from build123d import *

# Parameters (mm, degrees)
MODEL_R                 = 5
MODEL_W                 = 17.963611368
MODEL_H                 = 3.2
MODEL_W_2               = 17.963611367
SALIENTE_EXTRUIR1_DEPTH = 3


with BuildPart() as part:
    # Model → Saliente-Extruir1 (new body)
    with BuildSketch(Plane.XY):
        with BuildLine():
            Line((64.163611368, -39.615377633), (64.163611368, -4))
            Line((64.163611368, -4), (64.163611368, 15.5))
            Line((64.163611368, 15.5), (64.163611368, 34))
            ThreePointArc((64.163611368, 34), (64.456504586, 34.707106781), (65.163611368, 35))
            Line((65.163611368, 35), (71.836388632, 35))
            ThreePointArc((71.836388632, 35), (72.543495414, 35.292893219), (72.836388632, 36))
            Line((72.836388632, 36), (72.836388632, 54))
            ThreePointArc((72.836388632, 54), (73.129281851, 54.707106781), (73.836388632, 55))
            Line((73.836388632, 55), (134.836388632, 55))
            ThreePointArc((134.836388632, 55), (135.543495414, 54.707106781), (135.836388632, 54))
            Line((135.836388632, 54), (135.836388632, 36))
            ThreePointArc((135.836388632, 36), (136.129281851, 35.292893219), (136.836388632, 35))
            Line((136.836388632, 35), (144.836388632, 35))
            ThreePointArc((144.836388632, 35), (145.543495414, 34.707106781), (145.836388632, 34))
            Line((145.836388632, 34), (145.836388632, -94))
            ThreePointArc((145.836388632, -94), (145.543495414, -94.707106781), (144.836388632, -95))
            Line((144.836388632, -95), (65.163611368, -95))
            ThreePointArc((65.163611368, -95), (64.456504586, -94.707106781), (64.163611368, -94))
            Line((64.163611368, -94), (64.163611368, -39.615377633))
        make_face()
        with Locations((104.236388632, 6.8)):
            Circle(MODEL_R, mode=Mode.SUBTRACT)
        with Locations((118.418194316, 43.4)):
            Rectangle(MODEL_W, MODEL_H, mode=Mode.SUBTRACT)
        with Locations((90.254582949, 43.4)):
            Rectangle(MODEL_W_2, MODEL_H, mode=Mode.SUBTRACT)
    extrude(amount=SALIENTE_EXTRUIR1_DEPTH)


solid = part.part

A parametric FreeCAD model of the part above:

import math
import FreeCAD as App
import Part
import Sketcher
Q = App.Units.Quantity


def add_polygon(sketch, points):
    """Adds a closed chain of lines whose ends are joined by coincident constraints."""
    first, n = sketch.GeometryCount, len(points)
    for a, b in zip(points, points[1:] + points[:1]):
        sketch.addGeometry(Part.LineSegment(App.Vector(*a, 0), App.Vector(*b, 0)), False)
    for i in range(n):
        sketch.addConstraint(Sketcher.Constraint("Coincident", first + i, 2, first + (i + 1) % n, 1))

doc = App.newDocument("Part")
body = doc.addObject("PartDesign::Body", "Body")

# Sketch on XY plane
sketch1 = body.newObject("Sketcher::SketchObject", "Sketch")
sketch1.AttachmentSupport = (doc.getObject("XY_Plane"), [""])
sketch1.MapMode = "FlatFace"
sketch1.addGeometry(Part.ArcOfCircle(Part.Circle(App.Vector(65.163611, 34, 0), App.Vector(0, 0, 1), 1), math.radians(90), math.radians(180)), False)  # 0
sketch1.addGeometry(Part.LineSegment(App.Vector(64.163611, 34, 0), App.Vector(64.163611, -94, 0)), False)  # 1
sketch1.addGeometry(Part.ArcOfCircle(Part.Circle(App.Vector(65.163611, -94, 0), App.Vector(0, 0, 1), 1), math.radians(180), math.radians(270)), False)  # 2
sketch1.addGeometry(Part.LineSegment(App.Vector(65.163611, -95, 0), App.Vector(144.836389, -95, 0)), False)  # 3
sketch1.addGeometry(Part.ArcOfCircle(Part.Circle(App.Vector(144.836389, -94, 0), App.Vector(0, 0, 1), 1), math.radians(-90), math.radians(0)), False)  # 4
sketch1.addGeometry(Part.LineSegment(App.Vector(145.836389, -94, 0), App.Vector(145.836389, 34, 0)), False)  # 5
sketch1.addGeometry(Part.ArcOfCircle(Part.Circle(App.Vector(144.836389, 34, 0), App.Vector(0, 0, 1), 1), math.radians(0), math.radians(90)), False)  # 6
sketch1.addGeometry(Part.LineSegment(App.Vector(144.836389, 35, 0), App.Vector(136.836389, 35, 0)), False)  # 7
sketch1.addGeometry(Part.ArcOfCircle(Part.Circle(App.Vector(136.836389, 36, 0), App.Vector(0, 0, 1), 1), math.radians(-180), math.radians(-90)), False)  # 8
sketch1.addGeometry(Part.LineSegment(App.Vector(135.836389, 36, 0), App.Vector(135.836389, 54, 0)), False)  # 9
sketch1.addGeometry(Part.ArcOfCircle(Part.Circle(App.Vector(134.836389, 54, 0), App.Vector(0, 0, 1), 1), math.radians(0), math.radians(90)), False)  # 10
sketch1.addGeometry(Part.LineSegment(App.Vector(134.836389, 55, 0), App.Vector(73.836389, 55, 0)), False)  # 11
sketch1.addGeometry(Part.ArcOfCircle(Part.Circle(App.Vector(73.836389, 54, 0), App.Vector(0, 0, 1), 1), math.radians(90), math.radians(180)), False)  # 12
sketch1.addGeometry(Part.LineSegment(App.Vector(72.836389, 54, 0), App.Vector(72.836389, 36, 0)), False)  # 13
sketch1.addGeometry(Part.ArcOfCircle(Part.Circle(App.Vector(71.836389, 36, 0), App.Vector(0, 0, 1), 1), math.radians(-90), math.radians(0)), False)  # 14
sketch1.addGeometry(Part.LineSegment(App.Vector(71.836389, 35, 0), App.Vector(65.163611, 35, 0)), False)  # 15
sketch1.addGeometry(Part.Circle(App.Vector(104.236389, 6.8, 0), App.Vector(0, 0, 1), 5), False)  # 16
add_polygon(sketch1, [(109.436389, 41.8), (109.436389, 45), (127.4, 45), (127.4, 41.8)])  # lines 17-20
add_polygon(sketch1, [(81.272777, 41.8), (81.272777, 45), (99.236389, 45), (99.236389, 41.8)])  # lines 21-24
sketch1.addConstraint(Sketcher.Constraint("Tangent", 0, 2, 1, 1))
sketch1.addConstraint(Sketcher.Constraint("Tangent", 1, 2, 2, 1))
sketch1.addConstraint(Sketcher.Constraint("Tangent", 2, 2, 3, 1))
sketch1.addConstraint(Sketcher.Constraint("Tangent", 3, 2, 4, 1))
sketch1.addConstraint(Sketcher.Constraint("Tangent", 4, 2, 5, 1))
sketch1.addConstraint(Sketcher.Constraint("Tangent", 5, 2, 6, 1))
sketch1.addConstraint(Sketcher.Constraint("Tangent", 6, 2, 7, 1))
sketch1.addConstraint(Sketcher.Constraint("Tangent", 7, 2, 8, 2))
sketch1.addConstraint(Sketcher.Constraint("Tangent", 8, 1, 9, 1))
sketch1.addConstraint(Sketcher.Constraint("Tangent", 9, 2, 10, 1))
sketch1.addConstraint(Sketcher.Constraint("Tangent", 10, 2, 11, 1))
sketch1.addConstraint(Sketcher.Constraint("Tangent", 11, 2, 12, 1))
sketch1.addConstraint(Sketcher.Constraint("Tangent", 12, 2, 13, 1))
sketch1.addConstraint(Sketcher.Constraint("Tangent", 13, 2, 14, 2))
sketch1.addConstraint(Sketcher.Constraint("Tangent", 14, 1, 15, 1))
sketch1.addConstraint(Sketcher.Constraint("Tangent", 15, 2, 0, 1))
sketch1.addConstraint(Sketcher.Constraint("Vertical", 1))
sketch1.addConstraint(Sketcher.Constraint("Horizontal", 3))
sketch1.addConstraint(Sketcher.Constraint("Vertical", 5))
sketch1.addConstraint(Sketcher.Constraint("Horizontal", 7))
sketch1.addConstraint(Sketcher.Constraint("Vertical", 9))
sketch1.addConstraint(Sketcher.Constraint("Horizontal", 11))
sketch1.addConstraint(Sketcher.Constraint("Vertical", 13))
sketch1.addConstraint(Sketcher.Constraint("Horizontal", 15))
sketch1.addConstraint(Sketcher.Constraint("Vertical", 17))
sketch1.addConstraint(Sketcher.Constraint("Horizontal", 18))
sketch1.addConstraint(Sketcher.Constraint("Vertical", 19))
sketch1.addConstraint(Sketcher.Constraint("Horizontal", 20))
sketch1.addConstraint(Sketcher.Constraint("Vertical", 21))
sketch1.addConstraint(Sketcher.Constraint("Horizontal", 22))
sketch1.addConstraint(Sketcher.Constraint("Vertical", 23))
sketch1.addConstraint(Sketcher.Constraint("Horizontal", 24))
sketch1.addConstraint(Sketcher.Constraint("Equal", 0, 2))
sketch1.addConstraint(Sketcher.Constraint("Equal", 2, 4))
sketch1.addConstraint(Sketcher.Constraint("Equal", 4, 6))
sketch1.addConstraint(Sketcher.Constraint("Equal", 6, 8))
sketch1.addConstraint(Sketcher.Constraint("Equal", 8, 10))
sketch1.addConstraint(Sketcher.Constraint("Equal", 10, 12))
sketch1.addConstraint(Sketcher.Constraint("Equal", 12, 14))
sketch1.addConstraint(Sketcher.Constraint("Horizontal", 0, 3, 6, 3))
sketch1.addConstraint(Sketcher.Constraint("Horizontal", 18, 2, 21, 2))
sketch1.addConstraint(Sketcher.Constraint("Horizontal", 20, 2, 23, 2))
sketch1.addConstraint(Sketcher.Constraint("Equal", 20, 22))
sketch1.addConstraint(Sketcher.Constraint("Diameter", 16, Q("10 mm")))
sketch1.addConstraint(Sketcher.Constraint("Radius", 0, Q("1 mm")))
sketch1.addConstraint(Sketcher.Constraint("DistanceX", 7, 2, 7, 1, Q("8 mm")))
sketch1.addConstraint(Sketcher.Constraint("DistanceX", 11, 2, 11, 1, Q("61 mm")))
sketch1.addConstraint(Sketcher.Constraint("DistanceY", 1, 2, 1, 1, Q("128 mm")))
sketch1.addConstraint(Sketcher.Constraint("DistanceY", 9, 1, 9, 2, Q("18 mm")))
sketch1.addConstraint(Sketcher.Constraint("DistanceY", 17, 1, 17, 2, Q("3.2 mm")))
sketch1.addConstraint(Sketcher.Constraint("DistanceY", -1, 1, 0, 3, Q("34 mm")))
sketch1.addConstraint(Sketcher.Constraint("DistanceY", -1, 1, 17, 2, Q("45 mm")))
sketch1.addConstraint(Sketcher.Constraint("DistanceY", -1, 1, 16, 3, Q("6.8 mm")))
sketch1.addConstraint(Sketcher.Constraint("DistanceX", -1, 1, 18, 2, Q("127.4 mm")))
sketch1.addConstraint(Sketcher.Constraint("DistanceX", 14, 3, 16, 3, Q("32.4 mm")))
sketch1.addConstraint(Sketcher.Constraint("DistanceX", 17, 2, 10, 3, Q("25.4 mm")))
sketch1.addConstraint(Sketcher.Constraint("DistanceX", 22, 2, 17, 2, Q("10.2 mm")))
sketch1.addConstraint(Sketcher.Constraint("DistanceX", 18, 1, 18, 2, Q("17.963611 mm")))
sketch1.addConstraint(Sketcher.Constraint("DistanceX", 3, 1, 3, 2, Q("79.672777 mm")))
pad1 = body.newObject("PartDesign::Pad", "Pad")
pad1.Profile = sketch1
pad1.Length = 3

doc.recompute()
